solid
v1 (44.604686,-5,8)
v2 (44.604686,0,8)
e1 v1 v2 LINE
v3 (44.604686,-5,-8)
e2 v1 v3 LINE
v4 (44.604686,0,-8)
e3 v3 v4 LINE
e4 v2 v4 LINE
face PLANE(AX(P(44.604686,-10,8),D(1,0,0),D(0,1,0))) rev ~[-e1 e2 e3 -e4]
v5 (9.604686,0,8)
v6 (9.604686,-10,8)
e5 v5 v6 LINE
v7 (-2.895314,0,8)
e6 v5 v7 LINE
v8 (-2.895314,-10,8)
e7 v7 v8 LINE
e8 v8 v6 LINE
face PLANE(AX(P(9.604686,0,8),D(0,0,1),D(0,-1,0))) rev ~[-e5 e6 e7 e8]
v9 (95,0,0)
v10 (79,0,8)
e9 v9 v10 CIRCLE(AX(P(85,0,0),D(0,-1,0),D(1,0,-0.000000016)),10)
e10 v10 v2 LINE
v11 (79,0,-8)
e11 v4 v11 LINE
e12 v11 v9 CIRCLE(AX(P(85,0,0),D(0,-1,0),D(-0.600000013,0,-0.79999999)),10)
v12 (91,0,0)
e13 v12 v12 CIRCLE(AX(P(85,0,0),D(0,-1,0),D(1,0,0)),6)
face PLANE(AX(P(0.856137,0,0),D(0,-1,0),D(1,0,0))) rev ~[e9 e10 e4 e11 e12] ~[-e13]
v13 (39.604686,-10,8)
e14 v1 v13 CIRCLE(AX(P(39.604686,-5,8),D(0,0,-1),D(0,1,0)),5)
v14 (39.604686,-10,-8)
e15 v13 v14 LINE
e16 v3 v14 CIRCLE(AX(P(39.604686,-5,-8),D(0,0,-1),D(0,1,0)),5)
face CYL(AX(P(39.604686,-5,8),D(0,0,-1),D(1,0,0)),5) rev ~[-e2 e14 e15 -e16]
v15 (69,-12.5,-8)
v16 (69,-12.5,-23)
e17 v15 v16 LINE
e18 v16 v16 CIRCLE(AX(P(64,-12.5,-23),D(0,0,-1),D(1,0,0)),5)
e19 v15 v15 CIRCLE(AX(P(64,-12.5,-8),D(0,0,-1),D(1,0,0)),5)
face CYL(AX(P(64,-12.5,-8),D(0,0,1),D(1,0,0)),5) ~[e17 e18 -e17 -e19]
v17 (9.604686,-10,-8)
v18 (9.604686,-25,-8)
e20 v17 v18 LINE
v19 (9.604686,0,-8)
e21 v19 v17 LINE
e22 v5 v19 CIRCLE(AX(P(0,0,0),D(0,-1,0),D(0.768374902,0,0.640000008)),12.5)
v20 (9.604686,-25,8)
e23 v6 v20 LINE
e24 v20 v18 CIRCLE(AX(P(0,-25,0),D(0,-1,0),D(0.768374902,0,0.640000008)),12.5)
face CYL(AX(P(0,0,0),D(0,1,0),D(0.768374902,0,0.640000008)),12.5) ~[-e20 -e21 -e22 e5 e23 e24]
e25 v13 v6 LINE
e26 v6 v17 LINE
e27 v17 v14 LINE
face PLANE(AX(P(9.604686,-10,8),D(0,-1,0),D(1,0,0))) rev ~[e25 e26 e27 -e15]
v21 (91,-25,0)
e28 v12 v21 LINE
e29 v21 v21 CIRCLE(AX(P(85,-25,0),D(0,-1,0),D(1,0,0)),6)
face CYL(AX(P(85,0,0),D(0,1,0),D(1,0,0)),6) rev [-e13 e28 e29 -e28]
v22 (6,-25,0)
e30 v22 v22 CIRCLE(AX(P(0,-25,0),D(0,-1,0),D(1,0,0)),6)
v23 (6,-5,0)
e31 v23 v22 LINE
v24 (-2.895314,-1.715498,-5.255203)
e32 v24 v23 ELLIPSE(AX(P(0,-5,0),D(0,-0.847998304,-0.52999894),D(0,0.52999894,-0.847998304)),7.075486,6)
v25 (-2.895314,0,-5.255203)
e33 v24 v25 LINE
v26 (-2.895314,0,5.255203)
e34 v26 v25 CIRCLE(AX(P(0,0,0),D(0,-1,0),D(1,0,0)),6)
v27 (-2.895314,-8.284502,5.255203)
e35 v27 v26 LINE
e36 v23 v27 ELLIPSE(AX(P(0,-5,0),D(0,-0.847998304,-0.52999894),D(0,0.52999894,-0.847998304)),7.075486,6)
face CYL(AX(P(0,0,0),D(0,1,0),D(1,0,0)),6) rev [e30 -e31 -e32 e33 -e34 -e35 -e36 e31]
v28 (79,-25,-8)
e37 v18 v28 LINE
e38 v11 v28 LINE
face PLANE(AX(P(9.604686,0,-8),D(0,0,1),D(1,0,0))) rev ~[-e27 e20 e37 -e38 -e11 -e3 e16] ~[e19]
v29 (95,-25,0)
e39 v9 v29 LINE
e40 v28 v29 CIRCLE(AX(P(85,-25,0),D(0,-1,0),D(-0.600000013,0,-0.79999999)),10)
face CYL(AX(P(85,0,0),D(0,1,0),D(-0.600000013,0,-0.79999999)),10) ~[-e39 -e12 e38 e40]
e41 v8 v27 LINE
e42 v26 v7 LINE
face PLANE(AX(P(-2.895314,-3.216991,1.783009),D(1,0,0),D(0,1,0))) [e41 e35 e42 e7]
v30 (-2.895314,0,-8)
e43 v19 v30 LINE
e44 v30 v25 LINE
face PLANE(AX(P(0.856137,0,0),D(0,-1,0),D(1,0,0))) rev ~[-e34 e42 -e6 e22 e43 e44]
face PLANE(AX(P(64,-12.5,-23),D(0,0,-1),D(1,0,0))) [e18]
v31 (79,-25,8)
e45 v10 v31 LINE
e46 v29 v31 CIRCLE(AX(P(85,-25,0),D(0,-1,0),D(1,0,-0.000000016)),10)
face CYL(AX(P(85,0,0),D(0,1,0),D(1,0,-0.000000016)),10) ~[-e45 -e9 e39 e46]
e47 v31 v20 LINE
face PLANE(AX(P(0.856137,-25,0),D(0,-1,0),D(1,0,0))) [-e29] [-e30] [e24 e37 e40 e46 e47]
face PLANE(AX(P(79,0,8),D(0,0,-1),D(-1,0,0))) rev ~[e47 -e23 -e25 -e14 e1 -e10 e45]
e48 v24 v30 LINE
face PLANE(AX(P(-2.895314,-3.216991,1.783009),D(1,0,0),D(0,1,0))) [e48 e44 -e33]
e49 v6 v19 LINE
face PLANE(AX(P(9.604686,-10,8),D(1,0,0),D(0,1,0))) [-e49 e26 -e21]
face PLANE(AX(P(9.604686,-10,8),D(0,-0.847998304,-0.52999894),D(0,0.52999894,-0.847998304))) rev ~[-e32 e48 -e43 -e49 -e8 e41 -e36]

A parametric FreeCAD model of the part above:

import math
import FreeCAD as App
import Part
import Sketcher
Q = App.Units.Quantity


def edges_at(feature, points):
    """Names of the edges that pass closest to the given points."""
    edges = feature.Shape.Edges
    near = lambda p: min(range(len(edges)), key=lambda i: edges[i].distToShape(Part.Vertex(*p))[0])
    return sorted({f"Edge{near(p) + 1}" for p in points})

doc = App.newDocument("Part")
body = doc.addObject("PartDesign::Body", "Body")

# Sketch on XZ plane
sketch1 = body.newObject("Sketcher::SketchObject", "Sketch")
sketch1.AttachmentSupport = (doc.getObject("XZ_Plane"), [""])
sketch1.MapMode = "FlatFace"
sketch1.addGeometry([
    Part.ArcOfCircle(Part.Circle(App.Vector(0, 0, 0), App.Vector(0, 0, 1), 12), math.radians(40), math.radians(320)),  # 0
    Part.LineSegment(App.Vector(10, -8, 0), App.Vector(79, -8, 0)),  # 1
    Part.ArcOfCircle(Part.Circle(App.Vector(85, 0, 0), App.Vector(0, 0, 1), 10), math.radians(-127), math.radians(0)),  # 2
    Part.ArcOfCircle(Part.Circle(App.Vector(85, 0, 0), App.Vector(0, 0, 1), 10), math.radians(0), math.radians(127)),  # 3
    Part.LineSegment(App.Vector(79, 8, 0), App.Vector(10, 8, 0)),  # 4
    Part.Circle(App.Vector(0, 0, 0), App.Vector(0, 0, 1), 6),  # 5
    Part.Circle(App.Vector(85, 0, 0), App.Vector(0, 0, 1), 6),  # 6
], False)
sketch1.addConstraint([
    Sketcher.Constraint("Coincident", 0, 2, 1, 1),
    Sketcher.Constraint("Coincident", 1, 2, 2, 1),
    Sketcher.Constraint("Tangent", 2, 2, 3, 1),
    Sketcher.Constraint("Coincident", 3, 2, 4, 1),
    Sketcher.Constraint("Coincident", 4, 2, 0, 1),
    Sketcher.Constraint("Horizontal", 1),
    Sketcher.Constraint("Horizontal", 4),
    Sketcher.Constraint("Coincident", 0, 3, -1, 1),
    Sketcher.Constraint("Coincident", 5, 3, -1, 1),
    Sketcher.Constraint("Coincident", 6, 3, 2, 3),
    Sketcher.Constraint("Equal", 2, 3),
    Sketcher.Constraint("Equal", 5, 6),
    Sketcher.Constraint("Symmetric", 1, 2, 3, 2, -1),
    Sketcher.Constraint("PointOnObject", 2, 2, -1),
    Sketcher.Constraint("Diameter", 5, Q("12 mm")),
    Sketcher.Constraint("Radius", 2, Q("10 mm")),
    Sketcher.Constraint("Radius", 0, Q("12.5 mm")),
    Sketcher.Constraint("DistanceX", -1, 1, 2, 3, Q("85 mm")),
    Sketcher.Constraint("DistanceY", 0, 2, -1, 1, Q("8 mm")),
])
pad1 = body.newObject("PartDesign::Pad", "Pad")
pad1.Profile = sketch1
pad1.Length = 25

# Sketch on XY plane
sketch2 = body.newObject("Sketcher::SketchObject", "Sketch001")
sketch2.AttachmentSupport = (doc.getObject("XY_Plane"), [""])
sketch2.MapMode = "FlatFace"
sketch2.AttachmentOffset = App.Placement(App.Vector(0, 0, 8), App.Rotation())
sketch2.addGeometry([
    Part.LineSegment(App.Vector(10, 0, 0), App.Vector(10, -10, 0)),
    Part.LineSegment(App.Vector(10, -10, 0), App.Vector(45, -10, 0)),
    Part.LineSegment(App.Vector(45, -10, 0), App.Vector(45, 0, 0)),
    Part.LineSegment(App.Vector(45, 0, 0), App.Vector(10, 0, 0)),
], False)
sketch2.addConstraint([
    Sketcher.Constraint("Coincident", 0, 2, 1, 1),
    Sketcher.Constraint("Coincident", 1, 2, 2, 1),
    Sketcher.Constraint("Coincident", 2, 2, 3, 1),
    Sketcher.Constraint("Coincident", 3, 2, 0, 1),
    Sketcher.Constraint("Vertical", 0),
    Sketcher.Constraint("Horizontal", 1),
    Sketcher.Constraint("Vertical", 2),
    Sketcher.Constraint("Horizontal", 3),
    Sketcher.Constraint("PointOnObject", 2, 2, -1),
    Sketcher.Constraint("DistanceX", 1, 1, 1, 2, Q("35 mm")),
    Sketcher.Constraint("DistanceY", 0, 2, 0, 1, Q("10 mm")),
    Sketcher.Constraint("DistanceX", -1, 1, 0, 2, Q("9.604686 mm")),
])
pocket1 = body.newObject("PartDesign::Pocket", "Pocket")
pocket1.Profile = sketch2
pocket1.Type = "ThroughAll"

# Sketch on YZ plane
sketch3 = body.newObject("Sketcher::SketchObject", "Sketch002")
sketch3.AttachmentSupport = (doc.getObject("YZ_Plane"), [""])
sketch3.MapMode = "FlatFace"
sketch3.AttachmentOffset = App.Placement(App.Vector(0, 0, 9.604686), App.Rotation())
sketch3.addGeometry([
    Part.LineSegment(App.Vector(0, 8, 0), App.Vector(-10, 8, 0)),
    Part.LineSegment(App.Vector(-10, 8, 0), App.Vector(0, -8, 0)),
    Part.LineSegment(App.Vector(0, -8, 0), App.Vector(0, 8, 0)),
], False)
sketch3.addConstraint([
    Sketcher.Constraint("Coincident", 0, 2, 1, 1),
    Sketcher.Constraint("Coincident", 1, 2, 2, 1),
    Sketcher.Constraint("Coincident", 2, 2, 0, 1),
    Sketcher.Constraint("Horizontal", 0),
    Sketcher.Constraint("Vertical", 2),
    Sketcher.Constraint("Symmetric", 1, 2, 2, 2, -1, 1),
    Sketcher.Constraint("DistanceX", 0, 2, 0, 1, Q("10 mm")),
    Sketcher.Constraint("DistanceY", 2, 1, 2, 2, Q("16 mm")),
])
pocket2 = body.newObject("PartDesign::Pocket", "Pocket001")
pocket2.Profile = sketch3
pocket2.Length = 25
pocket2.Midplane = True
doc.recompute()

fillet = body.newObject("PartDesign::Fillet", "Fillet")
fillet.Base = (pocket2, edges_at(pocket2, [(44.605, -10, 0)]))
fillet.Radius = 5

# Sketch on XY plane
sketch4 = body.newObject("Sketcher::SketchObject", "Sketch003")
sketch4.AttachmentSupport = (doc.getObject("XY_Plane"), [""])
sketch4.MapMode = "FlatFace"
sketch4.AttachmentOffset = App.Placement(App.Vector(0, 0, -8), App.Rotation())
sketch4.addGeometry(Part.Circle(App.Vector(64, -12, 0), App.Vector(0, 0, 1), 5), False)
sketch4.addConstraint([
    Sketcher.Constraint("Diameter", 0, Q("10 mm")),
    Sketcher.Constraint("DistanceX", -1, 1, 0, 3, Q("64 mm")),
    Sketcher.Constraint("DistanceY", 0, 3, -1, 1, Q("12.5 mm")),
])
pad2 = body.newObject("PartDesign::Pad", "Pad001")
pad2.Profile = sketch4
pad2.Length = 15
pad2.Reversed = True

doc.recompute()
